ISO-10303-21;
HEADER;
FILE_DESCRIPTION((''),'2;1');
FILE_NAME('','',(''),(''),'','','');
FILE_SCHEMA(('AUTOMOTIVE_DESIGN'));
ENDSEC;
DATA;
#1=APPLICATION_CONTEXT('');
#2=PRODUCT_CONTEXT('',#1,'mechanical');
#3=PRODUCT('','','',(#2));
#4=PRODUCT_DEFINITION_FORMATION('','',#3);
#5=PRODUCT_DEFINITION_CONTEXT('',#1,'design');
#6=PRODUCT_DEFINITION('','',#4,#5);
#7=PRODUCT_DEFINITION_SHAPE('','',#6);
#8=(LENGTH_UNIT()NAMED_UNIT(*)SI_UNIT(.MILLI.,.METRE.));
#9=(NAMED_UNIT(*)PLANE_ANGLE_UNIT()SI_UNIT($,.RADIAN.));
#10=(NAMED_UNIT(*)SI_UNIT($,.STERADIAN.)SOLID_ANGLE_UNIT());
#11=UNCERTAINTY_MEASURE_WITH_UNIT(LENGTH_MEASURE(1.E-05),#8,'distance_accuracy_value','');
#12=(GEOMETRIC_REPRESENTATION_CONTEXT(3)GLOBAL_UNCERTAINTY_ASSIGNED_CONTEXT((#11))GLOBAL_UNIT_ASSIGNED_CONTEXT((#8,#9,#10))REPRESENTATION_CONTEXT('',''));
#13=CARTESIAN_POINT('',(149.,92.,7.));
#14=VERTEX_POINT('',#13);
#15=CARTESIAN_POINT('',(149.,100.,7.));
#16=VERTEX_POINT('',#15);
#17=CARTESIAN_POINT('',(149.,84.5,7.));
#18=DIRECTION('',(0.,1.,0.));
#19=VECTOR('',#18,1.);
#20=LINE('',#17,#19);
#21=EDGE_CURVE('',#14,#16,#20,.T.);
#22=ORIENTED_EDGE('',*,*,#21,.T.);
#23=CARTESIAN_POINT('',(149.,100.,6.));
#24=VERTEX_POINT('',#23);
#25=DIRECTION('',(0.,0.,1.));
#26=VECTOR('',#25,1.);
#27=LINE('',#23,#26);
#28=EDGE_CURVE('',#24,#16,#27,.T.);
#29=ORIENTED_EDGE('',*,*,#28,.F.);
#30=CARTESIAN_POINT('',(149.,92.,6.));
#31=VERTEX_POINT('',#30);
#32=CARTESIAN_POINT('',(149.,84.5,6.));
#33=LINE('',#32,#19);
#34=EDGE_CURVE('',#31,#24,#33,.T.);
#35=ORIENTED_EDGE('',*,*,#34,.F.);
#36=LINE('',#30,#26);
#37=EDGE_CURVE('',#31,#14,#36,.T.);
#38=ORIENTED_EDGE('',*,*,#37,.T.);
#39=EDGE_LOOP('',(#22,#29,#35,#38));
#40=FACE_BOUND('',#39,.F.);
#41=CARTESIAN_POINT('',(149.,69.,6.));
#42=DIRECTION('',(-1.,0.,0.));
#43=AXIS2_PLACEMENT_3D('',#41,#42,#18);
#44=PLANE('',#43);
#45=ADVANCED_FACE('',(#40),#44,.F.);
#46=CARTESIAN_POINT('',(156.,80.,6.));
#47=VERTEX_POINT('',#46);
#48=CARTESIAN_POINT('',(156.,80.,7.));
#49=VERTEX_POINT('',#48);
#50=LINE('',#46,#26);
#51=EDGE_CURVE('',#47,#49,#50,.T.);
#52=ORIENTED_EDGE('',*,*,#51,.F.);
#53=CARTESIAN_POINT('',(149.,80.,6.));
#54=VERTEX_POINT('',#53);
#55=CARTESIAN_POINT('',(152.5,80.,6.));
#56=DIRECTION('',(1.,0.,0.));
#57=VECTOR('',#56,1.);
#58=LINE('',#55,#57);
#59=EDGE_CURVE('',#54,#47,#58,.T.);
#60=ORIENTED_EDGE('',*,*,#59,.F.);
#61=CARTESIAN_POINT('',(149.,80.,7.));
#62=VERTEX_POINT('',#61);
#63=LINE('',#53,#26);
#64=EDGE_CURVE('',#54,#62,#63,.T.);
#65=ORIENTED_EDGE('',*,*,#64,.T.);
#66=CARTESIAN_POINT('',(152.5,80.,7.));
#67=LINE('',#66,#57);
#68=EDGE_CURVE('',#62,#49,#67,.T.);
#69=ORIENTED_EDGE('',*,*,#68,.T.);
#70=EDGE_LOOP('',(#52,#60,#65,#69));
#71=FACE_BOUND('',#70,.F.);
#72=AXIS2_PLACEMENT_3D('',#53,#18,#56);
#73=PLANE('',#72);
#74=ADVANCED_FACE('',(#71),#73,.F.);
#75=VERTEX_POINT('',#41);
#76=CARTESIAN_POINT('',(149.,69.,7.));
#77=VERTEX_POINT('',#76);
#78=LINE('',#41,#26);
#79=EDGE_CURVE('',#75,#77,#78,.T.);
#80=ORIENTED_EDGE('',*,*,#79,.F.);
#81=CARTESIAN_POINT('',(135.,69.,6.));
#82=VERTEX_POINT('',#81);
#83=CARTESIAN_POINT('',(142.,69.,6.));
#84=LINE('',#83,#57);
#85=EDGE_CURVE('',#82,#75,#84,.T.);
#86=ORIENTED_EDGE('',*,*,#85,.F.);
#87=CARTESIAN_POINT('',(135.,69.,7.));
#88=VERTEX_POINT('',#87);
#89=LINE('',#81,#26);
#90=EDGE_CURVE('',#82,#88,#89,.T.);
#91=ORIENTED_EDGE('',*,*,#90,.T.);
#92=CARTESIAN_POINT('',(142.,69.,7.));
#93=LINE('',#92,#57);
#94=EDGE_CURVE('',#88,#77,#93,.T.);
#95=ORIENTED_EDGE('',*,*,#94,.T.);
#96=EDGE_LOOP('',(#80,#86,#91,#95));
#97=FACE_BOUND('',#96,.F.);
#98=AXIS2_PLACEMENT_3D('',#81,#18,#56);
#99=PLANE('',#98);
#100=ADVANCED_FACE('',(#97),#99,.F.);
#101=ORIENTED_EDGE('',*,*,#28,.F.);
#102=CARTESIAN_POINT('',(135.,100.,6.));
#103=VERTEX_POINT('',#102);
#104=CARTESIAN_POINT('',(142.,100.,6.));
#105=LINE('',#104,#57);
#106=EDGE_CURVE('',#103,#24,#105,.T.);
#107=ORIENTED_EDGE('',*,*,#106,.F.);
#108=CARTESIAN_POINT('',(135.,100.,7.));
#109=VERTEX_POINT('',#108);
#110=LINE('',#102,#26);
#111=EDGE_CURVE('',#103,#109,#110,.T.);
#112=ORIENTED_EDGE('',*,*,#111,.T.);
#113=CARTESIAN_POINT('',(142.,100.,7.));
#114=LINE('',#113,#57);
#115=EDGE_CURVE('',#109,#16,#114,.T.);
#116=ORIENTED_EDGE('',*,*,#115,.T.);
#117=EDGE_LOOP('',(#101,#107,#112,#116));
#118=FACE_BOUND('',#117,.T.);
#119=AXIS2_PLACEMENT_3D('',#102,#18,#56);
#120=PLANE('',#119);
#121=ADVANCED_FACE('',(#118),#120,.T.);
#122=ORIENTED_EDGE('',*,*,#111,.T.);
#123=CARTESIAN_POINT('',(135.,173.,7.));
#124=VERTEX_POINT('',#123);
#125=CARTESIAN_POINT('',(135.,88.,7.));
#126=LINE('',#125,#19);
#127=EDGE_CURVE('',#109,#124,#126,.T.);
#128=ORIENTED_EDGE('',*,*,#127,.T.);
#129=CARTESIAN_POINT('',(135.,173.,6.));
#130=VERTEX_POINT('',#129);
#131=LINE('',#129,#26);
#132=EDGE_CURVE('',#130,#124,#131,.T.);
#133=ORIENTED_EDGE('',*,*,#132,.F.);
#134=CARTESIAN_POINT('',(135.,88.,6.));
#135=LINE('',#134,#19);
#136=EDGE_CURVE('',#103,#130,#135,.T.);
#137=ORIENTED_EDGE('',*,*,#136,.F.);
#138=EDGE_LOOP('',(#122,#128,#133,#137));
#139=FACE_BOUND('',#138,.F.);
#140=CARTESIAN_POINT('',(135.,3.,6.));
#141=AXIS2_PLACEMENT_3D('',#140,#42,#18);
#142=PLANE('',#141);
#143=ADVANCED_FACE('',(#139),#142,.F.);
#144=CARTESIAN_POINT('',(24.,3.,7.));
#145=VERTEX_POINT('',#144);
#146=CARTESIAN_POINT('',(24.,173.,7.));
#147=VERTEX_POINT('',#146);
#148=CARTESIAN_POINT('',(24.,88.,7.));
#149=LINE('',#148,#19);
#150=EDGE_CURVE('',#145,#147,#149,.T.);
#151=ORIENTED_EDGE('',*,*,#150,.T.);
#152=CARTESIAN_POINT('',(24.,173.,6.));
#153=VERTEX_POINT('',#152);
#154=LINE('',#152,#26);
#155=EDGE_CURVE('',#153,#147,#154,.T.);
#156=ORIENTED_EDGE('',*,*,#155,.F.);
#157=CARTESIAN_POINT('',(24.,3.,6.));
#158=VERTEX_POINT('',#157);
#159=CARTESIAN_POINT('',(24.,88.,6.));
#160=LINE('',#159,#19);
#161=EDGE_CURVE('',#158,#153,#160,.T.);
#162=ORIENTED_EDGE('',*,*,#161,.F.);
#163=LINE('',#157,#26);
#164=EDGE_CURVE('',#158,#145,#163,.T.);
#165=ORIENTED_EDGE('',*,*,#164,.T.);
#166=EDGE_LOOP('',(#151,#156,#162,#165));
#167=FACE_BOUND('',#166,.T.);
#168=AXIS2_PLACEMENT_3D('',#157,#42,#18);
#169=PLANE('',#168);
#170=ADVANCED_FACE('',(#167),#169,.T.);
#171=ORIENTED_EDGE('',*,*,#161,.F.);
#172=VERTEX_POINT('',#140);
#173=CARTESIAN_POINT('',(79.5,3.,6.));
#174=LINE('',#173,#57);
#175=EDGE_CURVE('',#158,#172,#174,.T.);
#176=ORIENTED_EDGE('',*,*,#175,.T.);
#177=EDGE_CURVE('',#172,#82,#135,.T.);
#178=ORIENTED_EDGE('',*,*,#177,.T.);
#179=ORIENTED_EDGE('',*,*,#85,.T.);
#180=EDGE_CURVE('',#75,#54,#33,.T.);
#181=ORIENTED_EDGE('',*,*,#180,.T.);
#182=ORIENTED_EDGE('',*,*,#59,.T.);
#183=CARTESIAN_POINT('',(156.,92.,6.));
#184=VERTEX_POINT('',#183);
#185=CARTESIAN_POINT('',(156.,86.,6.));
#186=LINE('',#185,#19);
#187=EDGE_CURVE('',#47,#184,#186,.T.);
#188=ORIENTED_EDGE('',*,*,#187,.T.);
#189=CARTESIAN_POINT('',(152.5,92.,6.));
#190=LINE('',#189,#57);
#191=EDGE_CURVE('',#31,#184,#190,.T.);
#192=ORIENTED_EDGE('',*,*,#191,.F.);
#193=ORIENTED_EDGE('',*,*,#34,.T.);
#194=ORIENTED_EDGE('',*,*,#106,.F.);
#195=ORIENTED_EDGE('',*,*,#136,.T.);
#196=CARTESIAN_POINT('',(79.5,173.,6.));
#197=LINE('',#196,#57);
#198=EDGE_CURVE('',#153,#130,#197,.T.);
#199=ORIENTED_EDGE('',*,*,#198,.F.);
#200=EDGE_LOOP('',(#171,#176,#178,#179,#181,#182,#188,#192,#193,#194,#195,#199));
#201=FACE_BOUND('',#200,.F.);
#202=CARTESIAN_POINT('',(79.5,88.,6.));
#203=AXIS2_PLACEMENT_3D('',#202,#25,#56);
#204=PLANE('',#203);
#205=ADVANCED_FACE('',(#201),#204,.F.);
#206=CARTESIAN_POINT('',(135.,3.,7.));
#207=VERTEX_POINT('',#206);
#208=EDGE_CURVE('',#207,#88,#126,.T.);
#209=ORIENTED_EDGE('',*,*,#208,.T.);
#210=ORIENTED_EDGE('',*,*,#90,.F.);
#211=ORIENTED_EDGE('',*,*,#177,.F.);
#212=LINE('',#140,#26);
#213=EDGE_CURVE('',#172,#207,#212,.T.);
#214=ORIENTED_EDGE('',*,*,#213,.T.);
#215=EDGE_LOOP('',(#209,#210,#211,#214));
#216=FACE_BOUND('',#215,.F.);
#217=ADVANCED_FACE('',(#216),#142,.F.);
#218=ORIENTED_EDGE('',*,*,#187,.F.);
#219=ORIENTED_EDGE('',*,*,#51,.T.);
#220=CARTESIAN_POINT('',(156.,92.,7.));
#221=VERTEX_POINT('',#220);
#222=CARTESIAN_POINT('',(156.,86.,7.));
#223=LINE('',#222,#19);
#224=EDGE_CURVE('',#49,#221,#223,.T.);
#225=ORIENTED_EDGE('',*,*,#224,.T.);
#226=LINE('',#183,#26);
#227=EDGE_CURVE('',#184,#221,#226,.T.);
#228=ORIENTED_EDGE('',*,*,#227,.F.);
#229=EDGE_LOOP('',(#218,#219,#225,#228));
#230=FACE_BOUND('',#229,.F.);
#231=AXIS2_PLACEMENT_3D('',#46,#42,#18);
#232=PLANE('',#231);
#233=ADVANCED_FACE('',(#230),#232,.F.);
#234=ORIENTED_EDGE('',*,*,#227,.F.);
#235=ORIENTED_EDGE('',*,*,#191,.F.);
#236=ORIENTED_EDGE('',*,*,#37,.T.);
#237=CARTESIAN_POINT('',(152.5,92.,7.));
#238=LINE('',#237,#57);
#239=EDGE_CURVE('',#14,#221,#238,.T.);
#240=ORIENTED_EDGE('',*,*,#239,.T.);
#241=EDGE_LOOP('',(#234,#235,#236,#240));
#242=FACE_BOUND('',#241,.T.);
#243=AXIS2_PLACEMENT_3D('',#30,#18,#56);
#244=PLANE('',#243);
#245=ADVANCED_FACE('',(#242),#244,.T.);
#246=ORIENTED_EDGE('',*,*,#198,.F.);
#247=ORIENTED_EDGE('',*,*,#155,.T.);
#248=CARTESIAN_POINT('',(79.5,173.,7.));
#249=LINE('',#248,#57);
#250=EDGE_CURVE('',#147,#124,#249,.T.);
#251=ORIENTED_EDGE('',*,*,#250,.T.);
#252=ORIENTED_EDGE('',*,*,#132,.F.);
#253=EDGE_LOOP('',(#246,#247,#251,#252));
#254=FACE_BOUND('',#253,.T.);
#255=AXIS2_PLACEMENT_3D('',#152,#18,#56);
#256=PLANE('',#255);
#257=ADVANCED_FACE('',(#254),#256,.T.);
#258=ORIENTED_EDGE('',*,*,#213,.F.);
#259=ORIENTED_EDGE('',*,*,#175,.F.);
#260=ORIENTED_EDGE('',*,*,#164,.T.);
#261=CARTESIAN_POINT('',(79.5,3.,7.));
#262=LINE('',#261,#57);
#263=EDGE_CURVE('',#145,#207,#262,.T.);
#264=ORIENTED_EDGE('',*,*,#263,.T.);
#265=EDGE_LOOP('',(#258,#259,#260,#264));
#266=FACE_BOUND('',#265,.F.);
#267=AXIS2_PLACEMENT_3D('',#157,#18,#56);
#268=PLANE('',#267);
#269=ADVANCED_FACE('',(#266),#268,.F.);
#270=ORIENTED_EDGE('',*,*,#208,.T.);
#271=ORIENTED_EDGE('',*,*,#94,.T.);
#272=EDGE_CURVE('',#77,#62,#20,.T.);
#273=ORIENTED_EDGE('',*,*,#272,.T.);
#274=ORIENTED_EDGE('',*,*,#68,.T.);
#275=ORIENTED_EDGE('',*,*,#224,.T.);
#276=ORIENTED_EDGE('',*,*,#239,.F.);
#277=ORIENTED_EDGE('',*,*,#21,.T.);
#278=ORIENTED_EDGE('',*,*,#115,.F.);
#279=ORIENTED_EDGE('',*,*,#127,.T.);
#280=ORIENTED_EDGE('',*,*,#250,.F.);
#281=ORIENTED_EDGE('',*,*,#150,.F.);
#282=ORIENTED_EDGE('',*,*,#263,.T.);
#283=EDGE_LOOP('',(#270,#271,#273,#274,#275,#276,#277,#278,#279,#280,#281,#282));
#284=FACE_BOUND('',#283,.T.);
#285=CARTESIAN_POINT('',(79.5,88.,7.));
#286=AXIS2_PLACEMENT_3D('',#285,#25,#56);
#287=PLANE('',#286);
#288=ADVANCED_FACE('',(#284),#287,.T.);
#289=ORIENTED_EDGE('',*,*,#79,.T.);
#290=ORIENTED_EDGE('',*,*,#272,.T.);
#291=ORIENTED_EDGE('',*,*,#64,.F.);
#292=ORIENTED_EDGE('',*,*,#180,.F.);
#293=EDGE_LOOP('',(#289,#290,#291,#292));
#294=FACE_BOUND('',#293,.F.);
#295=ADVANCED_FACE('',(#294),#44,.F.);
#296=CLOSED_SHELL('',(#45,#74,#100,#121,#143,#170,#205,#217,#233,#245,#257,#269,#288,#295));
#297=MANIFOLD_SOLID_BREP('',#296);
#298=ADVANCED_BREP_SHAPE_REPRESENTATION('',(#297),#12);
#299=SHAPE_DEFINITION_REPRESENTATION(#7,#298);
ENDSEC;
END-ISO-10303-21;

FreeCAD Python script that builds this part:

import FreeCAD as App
import Part
import Sketcher

V = App.Vector
Q = App.Units.Quantity


def add_polygon(sketch, points):
    """Adds a closed chain of lines whose ends are joined by coincident constraints."""
    first, n = sketch.GeometryCount, len(points)
    for a, b in zip(points, points[1:] + points[:1]):
        sketch.addGeometry(Part.LineSegment(App.Vector(*a, 0), App.Vector(*b, 0)), False)
    for i in range(n):
        sketch.addConstraint(Sketcher.Constraint("Coincident", first + i, 2, first + (i + 1) % n, 1))

doc = App.newDocument("Part")
body = doc.addObject("PartDesign::Body", "Body")

# Sketch on XY plane
sketch1 = body.newObject("Sketcher::SketchObject", "Sketch")
sketch1.AttachmentSupport = (doc.getObject("XY_Plane"), [""])
sketch1.MapMode = "FlatFace"
add_polygon(sketch1, [(0, 170), (0, 0), (111, 0), (111, 170)])  # lines 0-3
sketch1.addConstraint([
    Sketcher.Constraint("Vertical", 0),
    Sketcher.Constraint("Horizontal", 1),
    Sketcher.Constraint("Vertical", 2),
    Sketcher.Constraint("Horizontal", 3),
    Sketcher.Constraint("Coincident", 0, 2, -1, 1),
    Sketcher.Constraint("DistanceX", 1, 1, 1, 2, Q("111 mm")),
    Sketcher.Constraint("DistanceY", 0, 2, 0, 1, Q("170 mm")),
])
pad1 = body.newObject("PartDesign::Pad", "Pad")
pad1.Profile = sketch1
pad1.Length = 1

# Sketch on XY plane
sketch2 = body.newObject("Sketcher::SketchObject", "Sketch001")
sketch2.AttachmentSupport = (doc.getObject("XY_Plane"), [""])
sketch2.MapMode = "FlatFace"
add_polygon(sketch2, [(111, 97), (111, 66), (125, 66), (125, 97)])  # lines 0-3
sketch2.addConstraint([
    Sketcher.Constraint("Vertical", 0),
    Sketcher.Constraint("Horizontal", 1),
    Sketcher.Constraint("Vertical", 2),
    Sketcher.Constraint("Horizontal", 3),
    Sketcher.Constraint("DistanceX", 1, 1, 1, 2, Q("14 mm")),
    Sketcher.Constraint("DistanceY", 0, 2, 0, 1, Q("31 mm")),
    Sketcher.Constraint("DistanceX", -1, 1, 0, 2, Q("111 mm")),
    Sketcher.Constraint("DistanceY", -1, 1, 0, 2, Q("66 mm")),
])
pad2 = body.newObject("PartDesign::Pad", "Pad001")
pad2.Profile = sketch2
pad2.Length = 1

# Sketch on XY plane
sketch3 = body.newObject("Sketcher::SketchObject", "Sketch002")
sketch3.AttachmentSupport = (doc.getObject("XY_Plane"), [""])
sketch3.MapMode = "FlatFace"
add_polygon(sketch3, [(125, 89), (125, 77), (132, 77), (132, 89)])  # lines 0-3
sketch3.addConstraint([
    Sketcher.Constraint("Vertical", 0),
    Sketcher.Constraint("Horizontal", 1),
    Sketcher.Constraint("Vertical", 2),
    Sketcher.Constraint("Horizontal", 3),
    Sketcher.Constraint("DistanceX", 1, 1, 1, 2, Q("7 mm")),
    Sketcher.Constraint("DistanceY", 0, 2, 0, 1, Q("12 mm")),
    Sketcher.Constraint("DistanceX", -1, 1, 0, 2, Q("125 mm")),
    Sketcher.Constraint("DistanceY", -1, 1, 0, 2, Q("77 mm")),
])
pad3 = body.newObject("PartDesign::Pad", "Pad002")
pad3.Profile = sketch3
pad3.Length = 1

# Sketch on XY plane
sketch4 = body.newObject("Sketcher::SketchObject", "Sketch003")
sketch4.AttachmentSupport = (doc.getObject("XY_Plane"), [""])
sketch4.MapMode = "FlatFace"
add_polygon(sketch4, [(3, 166), (3, 3), (100, 3), (100, 166)])  # lines 0-3
sketch4.addConstraint([
    Sketcher.Constraint("Vertical", 0),
    Sketcher.Constraint("Horizontal", 1),
    Sketcher.Constraint("Vertical", 2),
    Sketcher.Constraint("Horizontal", 3),
    Sketcher.Constraint("DistanceX", 1, 1, 1, 2, Q("97 mm")),
    Sketcher.Constraint("DistanceY", 0, 2, 0, 1, Q("163 mm")),
    Sketcher.Constraint("DistanceX", -1, 1, 0, 2, Q("3 mm")),
    Sketcher.Constraint("DistanceY", -1, 1, 0, 2, Q("3 mm")),
])
pad4 = body.newObject("PartDesign::Pad", "Pad003")
pad4.Profile = sketch4
pad4.Length = 1
body2 = doc.addObject("PartDesign::Body", "Body001")
doc.recompute()

body.Placement = App.Placement(V(24, 3, 6), App.Rotation(V(0, 0, 1), 0))
boolean = body2.newObject("PartDesign::Boolean", "Boolean")
boolean.Type = "Fuse"
boolean.addObjects([body])

doc.recompute()
